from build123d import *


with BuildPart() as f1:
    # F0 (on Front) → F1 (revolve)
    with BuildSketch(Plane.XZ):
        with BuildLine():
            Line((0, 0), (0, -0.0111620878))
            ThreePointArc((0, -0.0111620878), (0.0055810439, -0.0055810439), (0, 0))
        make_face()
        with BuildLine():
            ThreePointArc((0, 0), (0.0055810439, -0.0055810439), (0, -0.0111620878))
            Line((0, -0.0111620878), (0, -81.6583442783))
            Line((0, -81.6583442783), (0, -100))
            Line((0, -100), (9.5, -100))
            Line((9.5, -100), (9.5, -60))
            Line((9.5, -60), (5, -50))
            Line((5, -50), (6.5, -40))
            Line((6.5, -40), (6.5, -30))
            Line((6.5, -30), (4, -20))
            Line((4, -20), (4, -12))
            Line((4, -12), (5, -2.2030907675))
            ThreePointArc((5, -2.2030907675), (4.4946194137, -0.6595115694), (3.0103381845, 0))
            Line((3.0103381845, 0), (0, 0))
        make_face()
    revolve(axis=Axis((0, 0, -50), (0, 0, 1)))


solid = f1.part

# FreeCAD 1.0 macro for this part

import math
import FreeCAD as App
import Part
import Sketcher
from FreeCAD import Vector

doc = App.newDocument("Part")
body = doc.addObject("PartDesign::Body", "Body")

sketch1 = body.newObject("Sketcher::SketchObject", "Sketch")
sketch1.AttachmentSupport = (doc.getObject("XZ_Plane"), [""])
sketch1.MapMode = "FlatFace"
sketch1.addGeometry(Part.LineSegment(Vector(0, 0, 0), Vector(0, -100, 0)), False)
sketch1.addGeometry(Part.LineSegment(Vector(0, -100, 0), Vector(9.5, -100, 0)), False)
sketch1.addGeometry(Part.LineSegment(Vector(9.5, -100, 0), Vector(9.5, -60, 0)), False)
sketch1.addGeometry(Part.LineSegment(Vector(9.5, -60, 0), Vector(5, -50, 0)), False)
sketch1.addGeometry(Part.LineSegment(Vector(5, -50, 0), Vector(6.5, -40, 0)), False)
sketch1.addGeometry(Part.LineSegment(Vector(6.5, -40, 0), Vector(6.5, -30, 0)), False)
sketch1.addGeometry(Part.LineSegment(Vector(6.5, -30, 0), Vector(4, -20, 0)), False)
sketch1.addGeometry(Part.LineSegment(Vector(4, -20, 0), Vector(4, -12, 0)), False)
sketch1.addGeometry(Part.LineSegment(Vector(4, -12, 0), Vector(5, -2.203091, 0)), False)
sketch1.addGeometry(Part.ArcOfCircle(Part.Circle(Vector(3.010338, -2, 0), Vector(0, 0, 1), 2), math.radians(-5.828167), math.radians(90)), False)
sketch1.addGeometry(Part.LineSegment(Vector(3.010338, 0, 0), Vector(0, 0, 0)), False)
sketch1.addConstraint(Sketcher.Constraint("Coincident", 0, 2, 1, 1))
sketch1.addConstraint(Sketcher.Constraint("Coincident", 1, 2, 2, 1))
sketch1.addConstraint(Sketcher.Constraint("Coincident", 2, 2, 3, 1))
sketch1.addConstraint(Sketcher.Constraint("Coincident", 3, 2, 4, 1))
sketch1.addConstraint(Sketcher.Constraint("Coincident", 4, 2, 5, 1))
sketch1.addConstraint(Sketcher.Constraint("Coincident", 5, 2, 6, 1))
sketch1.addConstraint(Sketcher.Constraint("Coincident", 6, 2, 7, 1))
sketch1.addConstraint(Sketcher.Constraint("Coincident", 7, 2, 8, 1))
sketch1.addConstraint(Sketcher.Constraint("Tangent", 8, 2, 9, 1))
sketch1.addConstraint(Sketcher.Constraint("Tangent", 9, 2, 10, 1))
sketch1.addConstraint(Sketcher.Constraint("Coincident", 10, 2, 0, 1))
sketch1.addConstraint(Sketcher.Constraint("Vertical", 0))
sketch1.addConstraint(Sketcher.Constraint("Horizontal", 1))
sketch1.addConstraint(Sketcher.Constraint("Vertical", 2))
sketch1.addConstraint(Sketcher.Constraint("Vertical", 5))
sketch1.addConstraint(Sketcher.Constraint("Vertical", 7))
sketch1.addConstraint(Sketcher.Constraint("Horizontal", 10))
sketch1.addConstraint(Sketcher.Constraint("Coincident", 10, 2, -1, 1))
sketch1.addConstraint(Sketcher.Constraint("Vertical", 3, 2, 8, 2))
sketch1.addConstraint(Sketcher.Constraint("Radius", 9, 2.0))
sketch1.addConstraint(Sketcher.Constraint("DistanceY", 0, 2, 0, 1, 100.0))
sketch1.addConstraint(Sketcher.Constraint("DistanceY", 2, 1, 2, 2, 40.0))
sketch1.addConstraint(Sketcher.Constraint("DistanceY", 5, 1, 5, 2, 10.0))
sketch1.addConstraint(Sketcher.Constraint("DistanceY", 7, 1, 7, 2, 8.0))
sketch1.addConstraint(Sketcher.Constraint("DistanceX", 1, 1, 1, 2, 9.5))
sketch1.addConstraint(Sketcher.Constraint("DistanceX", -1, 1, 3, 2, 5.0))
sketch1.addConstraint(Sketcher.Constraint("DistanceY", 3, 2, -1, 1, 50.0))
sketch1.addConstraint(Sketcher.Constraint("DistanceY", 4, 2, -1, 1, 40.0))
sketch1.addConstraint(Sketcher.Constraint("DistanceX", -1, 1, 6, 2, 4.0))
sketch1.addConstraint(Sketcher.Constraint("DistanceY", 6, 2, -1, 1, 20.0))
sketch1.addConstraint(Sketcher.Constraint("DistanceX", 4, 2, 2, 2, 3.0))
revolution = body.newObject("PartDesign::Revolution", "Revolution")
revolution.Profile = sketch1
revolution.ReferenceAxis = (sketch1, ["V_Axis"])
revolution.Angle = 360

doc.recompute()
